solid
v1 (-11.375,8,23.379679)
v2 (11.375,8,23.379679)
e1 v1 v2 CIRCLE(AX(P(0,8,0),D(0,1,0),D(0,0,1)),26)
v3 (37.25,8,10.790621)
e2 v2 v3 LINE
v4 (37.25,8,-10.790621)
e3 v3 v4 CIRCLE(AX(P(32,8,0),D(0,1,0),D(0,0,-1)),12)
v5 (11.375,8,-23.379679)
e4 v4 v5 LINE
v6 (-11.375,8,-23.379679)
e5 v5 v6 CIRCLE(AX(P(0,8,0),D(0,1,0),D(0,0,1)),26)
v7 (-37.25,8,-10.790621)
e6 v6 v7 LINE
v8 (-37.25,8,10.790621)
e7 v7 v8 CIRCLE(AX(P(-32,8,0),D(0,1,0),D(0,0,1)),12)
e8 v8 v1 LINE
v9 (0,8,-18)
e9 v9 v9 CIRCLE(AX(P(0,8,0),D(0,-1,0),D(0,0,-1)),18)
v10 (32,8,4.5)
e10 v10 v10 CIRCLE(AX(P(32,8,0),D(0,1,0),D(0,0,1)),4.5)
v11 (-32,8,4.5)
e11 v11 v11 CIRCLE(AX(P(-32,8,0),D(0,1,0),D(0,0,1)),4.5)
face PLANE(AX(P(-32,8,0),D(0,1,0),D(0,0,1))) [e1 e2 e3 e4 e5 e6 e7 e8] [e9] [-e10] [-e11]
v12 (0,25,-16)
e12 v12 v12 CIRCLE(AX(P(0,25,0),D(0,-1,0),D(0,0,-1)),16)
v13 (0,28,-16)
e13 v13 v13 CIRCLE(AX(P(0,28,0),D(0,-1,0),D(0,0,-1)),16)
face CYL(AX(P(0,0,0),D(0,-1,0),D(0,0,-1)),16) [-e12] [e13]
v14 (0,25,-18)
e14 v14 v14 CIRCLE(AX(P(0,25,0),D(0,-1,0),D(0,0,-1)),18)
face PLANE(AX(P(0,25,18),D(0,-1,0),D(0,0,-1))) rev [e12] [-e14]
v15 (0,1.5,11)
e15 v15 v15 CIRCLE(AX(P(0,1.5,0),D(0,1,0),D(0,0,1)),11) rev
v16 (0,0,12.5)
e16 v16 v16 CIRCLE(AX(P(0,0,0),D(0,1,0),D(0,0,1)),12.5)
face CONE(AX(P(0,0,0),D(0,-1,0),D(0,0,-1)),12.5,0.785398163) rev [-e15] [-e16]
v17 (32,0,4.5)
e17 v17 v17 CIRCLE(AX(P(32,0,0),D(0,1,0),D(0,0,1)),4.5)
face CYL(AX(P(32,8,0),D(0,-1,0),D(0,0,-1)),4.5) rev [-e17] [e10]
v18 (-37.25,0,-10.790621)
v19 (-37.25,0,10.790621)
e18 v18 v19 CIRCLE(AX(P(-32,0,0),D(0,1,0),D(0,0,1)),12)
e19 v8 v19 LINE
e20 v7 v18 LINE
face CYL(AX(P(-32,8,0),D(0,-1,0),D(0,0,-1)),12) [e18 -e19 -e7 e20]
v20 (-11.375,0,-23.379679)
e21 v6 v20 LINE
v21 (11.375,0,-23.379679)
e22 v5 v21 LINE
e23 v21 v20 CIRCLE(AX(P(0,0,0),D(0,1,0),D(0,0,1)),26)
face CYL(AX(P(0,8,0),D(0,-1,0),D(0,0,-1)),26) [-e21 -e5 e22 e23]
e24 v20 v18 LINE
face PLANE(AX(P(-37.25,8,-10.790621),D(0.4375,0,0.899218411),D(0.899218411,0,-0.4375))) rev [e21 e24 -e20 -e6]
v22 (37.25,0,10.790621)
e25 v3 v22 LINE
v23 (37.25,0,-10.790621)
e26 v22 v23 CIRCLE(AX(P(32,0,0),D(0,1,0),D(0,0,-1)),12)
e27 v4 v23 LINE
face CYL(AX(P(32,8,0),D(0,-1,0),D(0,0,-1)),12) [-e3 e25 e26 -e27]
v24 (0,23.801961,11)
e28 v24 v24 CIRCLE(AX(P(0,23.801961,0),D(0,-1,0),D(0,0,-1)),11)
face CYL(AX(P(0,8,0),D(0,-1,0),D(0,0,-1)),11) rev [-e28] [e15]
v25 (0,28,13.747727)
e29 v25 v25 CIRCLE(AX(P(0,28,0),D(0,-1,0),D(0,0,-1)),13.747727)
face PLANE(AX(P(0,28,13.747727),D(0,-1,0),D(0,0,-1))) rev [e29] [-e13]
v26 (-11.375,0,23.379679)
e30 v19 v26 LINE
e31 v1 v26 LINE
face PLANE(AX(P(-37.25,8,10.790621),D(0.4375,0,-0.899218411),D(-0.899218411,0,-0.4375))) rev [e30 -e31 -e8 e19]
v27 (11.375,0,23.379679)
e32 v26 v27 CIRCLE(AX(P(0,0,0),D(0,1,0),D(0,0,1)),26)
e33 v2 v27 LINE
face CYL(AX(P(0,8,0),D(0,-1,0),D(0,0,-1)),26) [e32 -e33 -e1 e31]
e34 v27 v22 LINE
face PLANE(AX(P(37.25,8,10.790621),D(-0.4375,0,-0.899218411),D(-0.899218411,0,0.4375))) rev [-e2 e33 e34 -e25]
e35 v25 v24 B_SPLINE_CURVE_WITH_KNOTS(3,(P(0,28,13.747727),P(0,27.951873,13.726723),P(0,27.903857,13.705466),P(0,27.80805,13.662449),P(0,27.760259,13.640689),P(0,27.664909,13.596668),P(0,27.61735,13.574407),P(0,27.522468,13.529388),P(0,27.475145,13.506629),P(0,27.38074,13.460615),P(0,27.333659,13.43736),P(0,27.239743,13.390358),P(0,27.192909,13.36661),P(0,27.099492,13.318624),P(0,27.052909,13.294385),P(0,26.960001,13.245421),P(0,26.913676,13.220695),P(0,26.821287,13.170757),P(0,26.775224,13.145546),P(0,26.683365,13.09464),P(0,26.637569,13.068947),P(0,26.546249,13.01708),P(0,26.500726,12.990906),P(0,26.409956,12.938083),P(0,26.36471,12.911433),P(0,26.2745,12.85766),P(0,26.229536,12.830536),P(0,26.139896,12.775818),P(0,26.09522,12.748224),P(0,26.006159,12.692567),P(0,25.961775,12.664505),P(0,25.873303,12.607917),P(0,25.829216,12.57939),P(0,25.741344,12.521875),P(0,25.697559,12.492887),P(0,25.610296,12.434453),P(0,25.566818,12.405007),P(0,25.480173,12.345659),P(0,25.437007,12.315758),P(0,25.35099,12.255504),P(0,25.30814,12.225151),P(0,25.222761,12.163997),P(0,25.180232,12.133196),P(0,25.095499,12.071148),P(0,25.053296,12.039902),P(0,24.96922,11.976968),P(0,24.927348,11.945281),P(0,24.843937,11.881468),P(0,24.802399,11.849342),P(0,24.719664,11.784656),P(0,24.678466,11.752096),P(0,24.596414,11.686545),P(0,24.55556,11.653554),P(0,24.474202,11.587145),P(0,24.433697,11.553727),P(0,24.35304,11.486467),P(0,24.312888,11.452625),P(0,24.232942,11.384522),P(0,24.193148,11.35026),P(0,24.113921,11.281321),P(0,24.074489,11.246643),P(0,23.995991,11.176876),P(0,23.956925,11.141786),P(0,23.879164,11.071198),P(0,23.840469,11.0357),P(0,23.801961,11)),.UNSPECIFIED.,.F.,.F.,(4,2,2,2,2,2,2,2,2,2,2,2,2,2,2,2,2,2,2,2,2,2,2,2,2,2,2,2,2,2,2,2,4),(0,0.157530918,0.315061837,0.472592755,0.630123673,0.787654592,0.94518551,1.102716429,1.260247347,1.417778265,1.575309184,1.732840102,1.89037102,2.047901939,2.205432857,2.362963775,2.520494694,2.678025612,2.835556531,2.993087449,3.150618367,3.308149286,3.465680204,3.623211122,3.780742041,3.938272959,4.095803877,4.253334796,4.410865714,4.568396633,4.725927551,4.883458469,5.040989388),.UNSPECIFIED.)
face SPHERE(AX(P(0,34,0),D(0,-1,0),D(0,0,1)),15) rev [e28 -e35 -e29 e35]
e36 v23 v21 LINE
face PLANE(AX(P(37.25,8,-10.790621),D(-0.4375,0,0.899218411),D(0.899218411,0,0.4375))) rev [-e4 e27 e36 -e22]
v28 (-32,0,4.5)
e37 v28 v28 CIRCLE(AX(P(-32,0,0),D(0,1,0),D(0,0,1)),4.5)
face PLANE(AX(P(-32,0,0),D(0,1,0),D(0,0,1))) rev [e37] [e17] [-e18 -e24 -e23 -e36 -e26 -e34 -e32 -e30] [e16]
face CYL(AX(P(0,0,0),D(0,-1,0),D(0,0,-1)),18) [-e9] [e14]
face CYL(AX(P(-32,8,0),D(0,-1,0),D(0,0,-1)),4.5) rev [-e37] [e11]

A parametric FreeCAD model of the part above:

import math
import FreeCAD as App
import Part
import Sketcher

V = App.Vector
Q = App.Units.Quantity


def edges_at(feature, points):
    """Names of the edges that pass closest to the given points."""
    edges = feature.Shape.Edges
    near = lambda p: min(range(len(edges)), key=lambda i: edges[i].distToShape(Part.Vertex(*p))[0])
    return sorted({f"Edge{near(p) + 1}" for p in points})

doc = App.newDocument("Part")
body = doc.addObject("PartDesign::Body", "Body")

sketch1 = body.newObject("Sketcher::SketchObject", "Sketch")
sketch1.AttachmentSupport = (doc.getObject("XZ_Plane"), [""])
sketch1.MapMode = "FlatFace"
sketch1.addGeometry(Part.LineSegment(V(-11.4, -23.4, 0), V(-37.2, -10.8, 0)), False)
sketch1.addGeometry(Part.ArcOfCircle(Part.Circle(V(-32, 0, 0), V(0, 0, 1), 12), math.radians(116), math.radians(244)), False)
sketch1.addGeometry(Part.LineSegment(V(-37.2, 10.8, 0), V(-11.4, 23.4, 0)), False)
sketch1.addGeometry(Part.ArcOfCircle(Part.Circle(V(0, 0, 0), V(0, 0, 1), 26), math.radians(64), math.radians(116)), False)
sketch1.addGeometry(Part.LineSegment(V(11.4, 23.4, 0), V(37.2, 10.8, 0)), False)
sketch1.addGeometry(Part.ArcOfCircle(Part.Circle(V(32, 0, 0), V(0, 0, 1), 12), math.radians(-64), math.radians(64)), False)
sketch1.addGeometry(Part.LineSegment(V(37.2, -10.8, 0), V(11.4, -23.4, 0)), False)
sketch1.addGeometry(Part.ArcOfCircle(Part.Circle(V(0, 0, 0), V(0, 0, 1), 26), math.radians(-116), math.radians(-64)), False)
sketch1.addGeometry(Part.Circle(V(32, 0, 0), V(0, 0, 1), 4.5), False)
sketch1.addGeometry(Part.Circle(V(0, 0, 0), V(0, 0, 1), 11), False)
sketch1.addGeometry(Part.Circle(V(-32, 0, 0), V(0, 0, 1), 4.5), False)
sketch1.addConstraint(Sketcher.Constraint("Tangent", 0, 2, 1, 2))
sketch1.addConstraint(Sketcher.Constraint("Tangent", 1, 1, 2, 1))
sketch1.addConstraint(Sketcher.Constraint("Tangent", 2, 2, 3, 2))
sketch1.addConstraint(Sketcher.Constraint("Tangent", 3, 1, 4, 1))
sketch1.addConstraint(Sketcher.Constraint("Tangent", 4, 2, 5, 2))
sketch1.addConstraint(Sketcher.Constraint("Tangent", 5, 1, 6, 1))
sketch1.addConstraint(Sketcher.Constraint("Tangent", 6, 2, 7, 2))
sketch1.addConstraint(Sketcher.Constraint("Tangent", 7, 1, 0, 1))
sketch1.addConstraint(Sketcher.Constraint("Coincident", 3, 3, -1, 1))
sketch1.addConstraint(Sketcher.Constraint("Coincident", 7, 3, -1, 1))
sketch1.addConstraint(Sketcher.Constraint("Coincident", 9, 3, -1, 1))
sketch1.addConstraint(Sketcher.Constraint("Coincident", 8, 3, 5, 3))
sketch1.addConstraint(Sketcher.Constraint("Coincident", 10, 3, 1, 3))
sketch1.addConstraint(Sketcher.Constraint("Equal", 1, 5))
sketch1.addConstraint(Sketcher.Constraint("Equal", 3, 7))
sketch1.addConstraint(Sketcher.Constraint("Equal", 8, 10))
sketch1.addConstraint(Sketcher.Constraint("Symmetric", 1, 3, 5, 3, -1, 1))
sketch1.addConstraint(Sketcher.Constraint("PointOnObject", 1, 3, -1))
sketch1.addConstraint(Sketcher.Constraint("Diameter", 8, Q("9 mm")))
sketch1.addConstraint(Sketcher.Constraint("Diameter", 9, Q("22 mm")))
sketch1.addConstraint(Sketcher.Constraint("Radius", 1, Q("12 mm")))
sketch1.addConstraint(Sketcher.Constraint("Radius", 3, Q("26 mm")))
sketch1.addConstraint(Sketcher.Constraint("DistanceX", 1, 3, -1, 1, Q("32 mm")))
pad1 = body.newObject("PartDesign::Pad", "Pad")
pad1.Profile = sketch1
pad1.Length = 8
pad1.Reversed = True

sketch2 = body.newObject("Sketcher::SketchObject", "Sketch001")
sketch2.AttachmentSupport = (doc.getObject("YZ_Plane"), [""])
sketch2.MapMode = "FlatFace"
sketch2.addGeometry(Part.LineSegment(V(8, 18, 0), V(8, 11, 0)), False)
sketch2.addGeometry(Part.LineSegment(V(8, 11, 0), V(23.8, 11, 0)), False)
sketch2.addGeometry(Part.ArcOfCircle(Part.Circle(V(34, 0, 0), V(0, 0, 1), 15), math.radians(113.58), math.radians(132.83)), False)
sketch2.addGeometry(Part.LineSegment(V(28, 13.7, 0), V(28, 16, 0)), False)
sketch2.addGeometry(Part.LineSegment(V(28, 16, 0), V(25, 16, 0)), False)
sketch2.addGeometry(Part.LineSegment(V(25, 16, 0), V(25, 18, 0)), False)
sketch2.addGeometry(Part.LineSegment(V(25, 18, 0), V(8, 18, 0)), False)
sketch2.addConstraint(Sketcher.Constraint("Coincident", 0, 2, 1, 1))
sketch2.addConstraint(Sketcher.Constraint("Coincident", 1, 2, 2, 2))
sketch2.addConstraint(Sketcher.Constraint("Coincident", 2, 1, 3, 1))
sketch2.addConstraint(Sketcher.Constraint("Coincident", 3, 2, 4, 1))
sketch2.addConstraint(Sketcher.Constraint("Coincident", 4, 2, 5, 1))
sketch2.addConstraint(Sketcher.Constraint("Coincident", 5, 2, 6, 1))
sketch2.addConstraint(Sketcher.Constraint("Coincident", 6, 2, 0, 1))
sketch2.addConstraint(Sketcher.Constraint("Vertical", 0))
sketch2.addConstraint(Sketcher.Constraint("Horizontal", 1))
sketch2.addConstraint(Sketcher.Constraint("Vertical", 3))
sketch2.addConstraint(Sketcher.Constraint("Horizontal", 4))
sketch2.addConstraint(Sketcher.Constraint("Vertical", 5))
sketch2.addConstraint(Sketcher.Constraint("Horizontal", 6))
sketch2.addConstraint(Sketcher.Constraint("PointOnObject", 2, 3, -1))
sketch2.addConstraint(Sketcher.Constraint("Radius", 2, Q("15 mm")))
sketch2.addConstraint(Sketcher.Constraint("DistanceX", 4, 2, 4, 1, Q("3 mm")))
sketch2.addConstraint(Sketcher.Constraint("DistanceX", 6, 2, 6, 1, Q("17 mm")))
sketch2.addConstraint(Sketcher.Constraint("DistanceY", 0, 2, 0, 1, Q("7 mm")))
sketch2.addConstraint(Sketcher.Constraint("DistanceY", 5, 1, 5, 2, Q("2 mm")))
sketch2.addConstraint(Sketcher.Constraint("DistanceX", -1, 1, 2, 3, Q("34 mm")))
sketch2.addConstraint(Sketcher.Constraint("DistanceX", -1, 1, 0, 2, Q("8 mm")))
sketch2.addConstraint(Sketcher.Constraint("DistanceY", -1, 1, 0, 2, Q("11 mm")))
revolution = body.newObject("PartDesign::Revolution", "Revolution")
revolution.Profile = sketch2
revolution.ReferenceAxis = (sketch2, ["H_Axis"])
revolution.Angle = 360
doc.recompute()

chamfer = body.newObject("PartDesign::Chamfer", "Chamfer")
chamfer.Base = (revolution, edges_at(revolution, [(0, 0, -11)]))
chamfer.Size = 1.5

doc.recompute()
